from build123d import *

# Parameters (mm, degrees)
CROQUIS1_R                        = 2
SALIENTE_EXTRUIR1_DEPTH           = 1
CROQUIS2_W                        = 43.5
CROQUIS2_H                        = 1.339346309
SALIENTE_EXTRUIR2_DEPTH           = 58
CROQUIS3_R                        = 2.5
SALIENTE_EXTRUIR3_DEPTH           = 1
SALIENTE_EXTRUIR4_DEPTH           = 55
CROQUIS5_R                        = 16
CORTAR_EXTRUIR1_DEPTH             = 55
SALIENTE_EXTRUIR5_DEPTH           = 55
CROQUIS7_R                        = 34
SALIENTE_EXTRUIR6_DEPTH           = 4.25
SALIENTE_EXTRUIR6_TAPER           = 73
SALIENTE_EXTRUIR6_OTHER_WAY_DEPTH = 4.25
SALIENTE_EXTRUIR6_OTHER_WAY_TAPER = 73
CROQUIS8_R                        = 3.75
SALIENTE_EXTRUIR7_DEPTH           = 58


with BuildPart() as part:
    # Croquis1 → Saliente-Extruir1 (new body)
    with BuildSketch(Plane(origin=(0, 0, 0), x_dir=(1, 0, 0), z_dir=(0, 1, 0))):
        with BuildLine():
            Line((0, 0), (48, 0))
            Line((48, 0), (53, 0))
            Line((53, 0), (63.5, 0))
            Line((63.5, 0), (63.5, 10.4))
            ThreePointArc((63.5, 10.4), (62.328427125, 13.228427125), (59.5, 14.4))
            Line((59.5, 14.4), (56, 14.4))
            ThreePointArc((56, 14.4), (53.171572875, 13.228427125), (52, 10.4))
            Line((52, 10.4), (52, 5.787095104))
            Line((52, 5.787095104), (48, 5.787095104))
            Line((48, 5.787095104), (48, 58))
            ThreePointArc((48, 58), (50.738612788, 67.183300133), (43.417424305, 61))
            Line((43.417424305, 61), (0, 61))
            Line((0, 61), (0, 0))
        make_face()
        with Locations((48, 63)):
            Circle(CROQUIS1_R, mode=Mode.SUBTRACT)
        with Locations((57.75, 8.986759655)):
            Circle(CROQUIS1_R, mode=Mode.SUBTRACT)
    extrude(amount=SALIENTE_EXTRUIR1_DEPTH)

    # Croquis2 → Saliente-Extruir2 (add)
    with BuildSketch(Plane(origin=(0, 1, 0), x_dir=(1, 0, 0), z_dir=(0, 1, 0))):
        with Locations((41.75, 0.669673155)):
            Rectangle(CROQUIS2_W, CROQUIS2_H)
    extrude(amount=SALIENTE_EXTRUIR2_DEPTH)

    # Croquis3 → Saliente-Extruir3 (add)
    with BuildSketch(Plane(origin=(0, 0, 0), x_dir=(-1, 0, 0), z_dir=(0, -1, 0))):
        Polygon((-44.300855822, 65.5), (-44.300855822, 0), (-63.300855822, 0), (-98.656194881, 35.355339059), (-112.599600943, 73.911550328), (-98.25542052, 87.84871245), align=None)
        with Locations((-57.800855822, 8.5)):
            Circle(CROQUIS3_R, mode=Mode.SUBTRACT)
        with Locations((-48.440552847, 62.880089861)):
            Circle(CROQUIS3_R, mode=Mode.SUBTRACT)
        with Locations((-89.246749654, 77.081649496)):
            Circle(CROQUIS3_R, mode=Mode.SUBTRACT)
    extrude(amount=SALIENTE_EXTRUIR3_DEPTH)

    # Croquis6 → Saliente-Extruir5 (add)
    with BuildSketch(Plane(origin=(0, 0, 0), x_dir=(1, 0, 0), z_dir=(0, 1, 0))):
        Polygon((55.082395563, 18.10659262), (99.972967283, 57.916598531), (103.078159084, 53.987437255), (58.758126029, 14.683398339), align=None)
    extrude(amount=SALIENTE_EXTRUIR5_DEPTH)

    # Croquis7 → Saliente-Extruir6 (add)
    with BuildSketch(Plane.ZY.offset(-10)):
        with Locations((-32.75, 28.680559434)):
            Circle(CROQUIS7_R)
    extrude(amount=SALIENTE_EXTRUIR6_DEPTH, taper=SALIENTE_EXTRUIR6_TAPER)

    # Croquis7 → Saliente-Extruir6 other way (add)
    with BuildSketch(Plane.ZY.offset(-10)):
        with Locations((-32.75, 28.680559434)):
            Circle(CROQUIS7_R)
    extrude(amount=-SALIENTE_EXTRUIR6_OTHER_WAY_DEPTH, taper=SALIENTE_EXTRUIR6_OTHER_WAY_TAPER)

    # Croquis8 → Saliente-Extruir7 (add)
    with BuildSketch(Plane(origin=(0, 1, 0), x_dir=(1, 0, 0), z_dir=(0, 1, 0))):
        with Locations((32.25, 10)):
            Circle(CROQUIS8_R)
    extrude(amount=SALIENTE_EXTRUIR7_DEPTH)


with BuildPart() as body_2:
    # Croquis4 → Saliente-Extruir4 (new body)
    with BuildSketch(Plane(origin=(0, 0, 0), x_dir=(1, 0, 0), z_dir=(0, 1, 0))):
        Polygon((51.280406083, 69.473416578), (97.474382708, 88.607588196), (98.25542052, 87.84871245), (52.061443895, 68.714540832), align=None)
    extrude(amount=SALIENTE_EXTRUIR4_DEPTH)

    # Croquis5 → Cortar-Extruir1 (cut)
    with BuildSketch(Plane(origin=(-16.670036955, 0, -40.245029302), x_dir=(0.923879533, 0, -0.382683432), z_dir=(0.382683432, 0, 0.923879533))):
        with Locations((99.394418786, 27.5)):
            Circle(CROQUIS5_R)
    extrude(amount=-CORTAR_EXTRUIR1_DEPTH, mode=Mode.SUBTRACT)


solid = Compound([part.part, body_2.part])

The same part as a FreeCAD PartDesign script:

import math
import FreeCAD as App
import Part
import Sketcher
from FreeCAD import Vector
Q = App.Units.Quantity

doc = App.newDocument("Part")
body = doc.addObject("PartDesign::Body", "Body")

# Sketch on XZ plane
sketch1 = body.newObject("Sketcher::SketchObject", "Sketch")
sketch1.AttachmentSupport = (doc.getObject("XZ_Plane"), [""])
sketch1.MapMode = "FlatFace"
sketch1.addGeometry(Part.LineSegment(Vector(0, 0, 0), Vector(63.5, 0, 0)), False)
sketch1.addGeometry(Part.LineSegment(Vector(63.5, 0, 0), Vector(63.5, -10.4, 0)), False)
sketch1.addGeometry(Part.ArcOfCircle(Part.Circle(Vector(59.5, -10.4, 0), Vector(0, 0, 1), 4), math.radians(-90), math.radians(0)), False)
sketch1.addGeometry(Part.LineSegment(Vector(59.5, -14.4, 0), Vector(56, -14.4, 0)), False)
sketch1.addGeometry(Part.ArcOfCircle(Part.Circle(Vector(56, -10.4, 0), Vector(0, 0, 1), 4), math.radians(180), math.radians(270)), False)
sketch1.addGeometry(Part.LineSegment(Vector(52, -10.4, 0), Vector(52, -5.787095, 0)), False)
sketch1.addGeometry(Part.LineSegment(Vector(52, -5.787095, 0), Vector(48, -5.787095, 0)), False)
sketch1.addGeometry(Part.LineSegment(Vector(48, -5.787095, 0), Vector(48, -58, 0)), False)
sketch1.addGeometry(Part.ArcOfCircle(Part.Circle(Vector(48, -63, 0), Vector(0, 0, 1), 5), math.radians(156.421822), math.radians(450)), False)
sketch1.addGeometry(Part.LineSegment(Vector(43.417424, -61, 0), Vector(0, -61, 0)), False)
sketch1.addGeometry(Part.LineSegment(Vector(0, -61, 0), Vector(0, 0, 0)), False)
sketch1.addGeometry(Part.Circle(Vector(57.75, -8.98676, 0), Vector(0, 0, 1), 2), False)
sketch1.addGeometry(Part.Circle(Vector(48, -63, 0), Vector(0, 0, 1), 2), False)
sketch1.addConstraint(Sketcher.Constraint("Coincident", 0, 2, 1, 1))
sketch1.addConstraint(Sketcher.Constraint("Tangent", 1, 2, 2, 2))
sketch1.addConstraint(Sketcher.Constraint("Tangent", 2, 1, 3, 1))
sketch1.addConstraint(Sketcher.Constraint("Tangent", 3, 2, 4, 2))
sketch1.addConstraint(Sketcher.Constraint("Tangent", 4, 1, 5, 1))
sketch1.addConstraint(Sketcher.Constraint("Coincident", 5, 2, 6, 1))
sketch1.addConstraint(Sketcher.Constraint("Coincident", 6, 2, 7, 1))
sketch1.addConstraint(Sketcher.Constraint("Coincident", 7, 2, 8, 2))
sketch1.addConstraint(Sketcher.Constraint("Coincident", 8, 1, 9, 1))
sketch1.addConstraint(Sketcher.Constraint("Coincident", 9, 2, 10, 1))
sketch1.addConstraint(Sketcher.Constraint("Coincident", 10, 2, 0, 1))
sketch1.addConstraint(Sketcher.Constraint("Horizontal", 0))
sketch1.addConstraint(Sketcher.Constraint("Vertical", 1))
sketch1.addConstraint(Sketcher.Constraint("Horizontal", 3))
sketch1.addConstraint(Sketcher.Constraint("Vertical", 5))
sketch1.addConstraint(Sketcher.Constraint("Horizontal", 6))
sketch1.addConstraint(Sketcher.Constraint("Vertical", 7))
sketch1.addConstraint(Sketcher.Constraint("Horizontal", 9))
sketch1.addConstraint(Sketcher.Constraint("Vertical", 10))
sketch1.addConstraint(Sketcher.Constraint("Coincident", 10, 2, -1, 1))
sketch1.addConstraint(Sketcher.Constraint("Coincident", 12, 3, 8, 3))
sketch1.addConstraint(Sketcher.Constraint("Equal", 2, 4))
sketch1.addConstraint(Sketcher.Constraint("Equal", 11, 12))
sketch1.addConstraint(Sketcher.Constraint("Vertical", 12, 3, 6, 2))
sketch1.addConstraint(Sketcher.Constraint("Diameter", 11, 4.0))
sketch1.addConstraint(Sketcher.Constraint("Radius", 2, 4.0))
sketch1.addConstraint(Sketcher.Constraint("Radius", 8, 5.0))
sketch1.addConstraint(Sketcher.Constraint("DistanceX", 6, 2, 6, 1, 4.0))
sketch1.addConstraint(Sketcher.Constraint("DistanceY", 10, 1, 10, 2, 61.0))
sketch1.addConstraint(Sketcher.Constraint("DistanceX", 0, 1, 0, 2, 63.5))
sketch1.addConstraint(Sketcher.Constraint("DistanceX", 3, 2, 3, 1, 3.5))
sketch1.addConstraint(Sketcher.Constraint("DistanceY", 1, 2, 1, 1, 10.4))
sketch1.addConstraint(Sketcher.Constraint("DistanceY", 8, 3, -1, 1, 63.0))
sketch1.addConstraint(Sketcher.Constraint("DistanceX", -1, 1, 11, 3, 57.75))
sketch1.addConstraint(Sketcher.Constraint("DistanceY", 5, 1, 5, 2, 4.612905))
sketch1.addConstraint(Sketcher.Constraint("DistanceY", 11, 3, -1, 1, 8.98676))
pad1 = body.newObject("PartDesign::Pad", "Pad")
pad1.Profile = sketch1
pad1.Length = 1
pad1.Reversed = True

# Sketch on XZ plane
sketch2 = body.newObject("Sketcher::SketchObject", "Sketch001")
sketch2.AttachmentSupport = (doc.getObject("XZ_Plane"), [""])
sketch2.MapMode = "FlatFace"
sketch2.AttachmentOffset = App.Placement(Vector(0, 0, -1), App.Rotation())
sketch2.addGeometry(Part.LineSegment(Vector(20, -1.339346, 0), Vector(20, 0, 0)), False)
sketch2.addGeometry(Part.LineSegment(Vector(20, 0, 0), Vector(63.5, 0, 0)), False)
sketch2.addGeometry(Part.LineSegment(Vector(63.5, 0, 0), Vector(63.5, -1.339346, 0)), False)
sketch2.addGeometry(Part.LineSegment(Vector(63.5, -1.339346, 0), Vector(20, -1.339346, 0)), False)
sketch2.addConstraint(Sketcher.Constraint("Coincident", 0, 2, 1, 1))
sketch2.addConstraint(Sketcher.Constraint("Coincident", 1, 2, 2, 1))
sketch2.addConstraint(Sketcher.Constraint("Coincident", 2, 2, 3, 1))
sketch2.addConstraint(Sketcher.Constraint("Coincident", 3, 2, 0, 1))
sketch2.addConstraint(Sketcher.Constraint("Vertical", 0))
sketch2.addConstraint(Sketcher.Constraint("Horizontal", 1))
sketch2.addConstraint(Sketcher.Constraint("Vertical", 2))
sketch2.addConstraint(Sketcher.Constraint("Horizontal", 3))
sketch2.addConstraint(Sketcher.Constraint("PointOnObject", 0, 2, -1))
sketch2.addConstraint(Sketcher.Constraint("DistanceX", 1, 1, 1, 2, 43.5))
sketch2.addConstraint(Sketcher.Constraint("DistanceX", -1, 1, 0, 2, 20.0))
sketch2.addConstraint(Sketcher.Constraint("DistanceY", 0, 1, 0, 2, 1.339346))
pad2 = body.newObject("PartDesign::Pad", "Pad001")
pad2.Profile = sketch2
pad2.Length = 58
pad2.Reversed = True

# Sketch on XZ plane
sketch3 = body.newObject("Sketcher::SketchObject", "Sketch002")
sketch3.AttachmentSupport = (doc.getObject("XZ_Plane"), [""])
sketch3.MapMode = "FlatFace"
sketch3.addGeometry(Part.LineSegment(Vector(44.300856, 0, 0), Vector(44.300856, -65.5, 0)), False)
sketch3.addGeometry(Part.LineSegment(Vector(44.300856, -65.5, 0), Vector(98.255421, -87.848712, 0)), False)
sketch3.addGeometry(Part.LineSegment(Vector(98.255421, -87.848712, 0), Vector(112.599601, -73.91155, 0)), False)
sketch3.addGeometry(Part.LineSegment(Vector(112.599601, -73.91155, 0), Vector(98.656195, -35.355339, 0)), False)
sketch3.addGeometry(Part.LineSegment(Vector(98.656195, -35.355339, 0), Vector(63.300856, 0, 0)), False)
sketch3.addGeometry(Part.LineSegment(Vector(63.300856, 0, 0), Vector(44.300856, 0, 0)), False)
sketch3.addGeometry(Part.Circle(Vector(57.800856, -8.5, 0), Vector(0, 0, 1), 2.5), False)
sketch3.addGeometry(Part.Circle(Vector(48.440553, -62.88009, 0), Vector(0, 0, 1), 2.5), False)
sketch3.addGeometry(Part.Circle(Vector(89.24675, -77.081649, 0), Vector(0, 0, 1), 2.5), False)
sketch3.addConstraint(Sketcher.Constraint("Coincident", 0, 2, 1, 1))
sketch3.addConstraint(Sketcher.Constraint("Coincident", 1, 2, 2, 1))
sketch3.addConstraint(Sketcher.Constraint("Coincident", 2, 2, 3, 1))
sketch3.addConstraint(Sketcher.Constraint("Coincident", 3, 2, 4, 1))
sketch3.addConstraint(Sketcher.Constraint("Coincident", 4, 2, 5, 1))
sketch3.addConstraint(Sketcher.Constraint("Coincident", 5, 2, 0, 1))
sketch3.addConstraint(Sketcher.Constraint("Vertical", 0))
sketch3.addConstraint(Sketcher.Constraint("Horizontal", 5))
sketch3.addConstraint(Sketcher.Constraint("Equal", 6, 7))
sketch3.addConstraint(Sketcher.Constraint("Equal", 7, 8))
sketch3.addConstraint(Sketcher.Constraint("PointOnObject", 4, 2, -1))
sketch3.addConstraint(Sketcher.Constraint("Diameter", 6, 5.0))
sketch3.addConstraint(Sketcher.Constraint("DistanceX", 5, 2, 5, 1, 19.0))
sketch3.addConstraint(Sketcher.Constraint("Angle", 4, Q("135 deg")))
sketch3.addConstraint(Sketcher.Constraint("Distance", 2, 20.0))
sketch3.addConstraint(Sketcher.Constraint("Distance", 3, 41.0))
sketch3.addConstraint(Sketcher.Constraint("Distance", 4, 50.0))
sketch3.addConstraint(Sketcher.Constraint("DistanceY", 0, 2, 0, 1, 65.5))
sketch3.addConstraint(Sketcher.Constraint("Angle", 1, Q("-22.5 deg")))
sketch3.addConstraint(Sketcher.Constraint("DistanceY", 0, 2, 6, 3, 57.0))
sketch3.addConstraint(Sketcher.Constraint("Distance", 1, 58.4))
sketch3.addConstraint(Sketcher.Constraint("DistanceX", 0, 2, 6, 3, 13.5))
sketch3.addConstraint(Sketcher.Constraint("DistanceX", -1, 1, 2, 2, 112.599601))
sketch3.addConstraint(Sketcher.Constraint("DistanceY", 8, 3, 2, 2, 3.170099))
sketch3.addConstraint(Sketcher.Constraint("DistanceY", 7, 3, -1, 1, 62.88009))
sketch3.addConstraint(Sketcher.Constraint("DistanceX", -1, 1, 8, 3, 89.24675))
sketch3.addConstraint(Sketcher.Constraint("DistanceX", 7, 3, 2, 2, 64.159048))
pad3 = body.newObject("PartDesign::Pad", "Pad002")
pad3.Profile = sketch3
pad3.Length = 1

# Sketch on XZ plane
sketch4 = body.newObject("Sketcher::SketchObject", "Sketch003")
sketch4.AttachmentSupport = (doc.getObject("XZ_Plane"), [""])
sketch4.MapMode = "FlatFace"
sketch4.addGeometry(Part.LineSegment(Vector(99.972967, -57.916599, 0), Vector(55.082396, -18.106593, 0)), False)
sketch4.addGeometry(Part.LineSegment(Vector(55.082396, -18.106593, 0), Vector(58.758126, -14.683398, 0)), False)
sketch4.addGeometry(Part.LineSegment(Vector(58.758126, -14.683398, 0), Vector(103.078159, -53.987437, 0)), False)
sketch4.addGeometry(Part.LineSegment(Vector(103.078159, -53.987437, 0), Vector(99.972967, -57.916599, 0)), False)
sketch4.addConstraint(Sketcher.Constraint("Coincident", 0, 2, 1, 1))
sketch4.addConstraint(Sketcher.Constraint("Coincident", 1, 2, 2, 1))
sketch4.addConstraint(Sketcher.Constraint("Coincident", 2, 2, 3, 1))
sketch4.addConstraint(Sketcher.Constraint("Coincident", 3, 2, 0, 1))
sketch4.addConstraint(Sketcher.Constraint("Parallel", 0, 2))
sketch4.addConstraint(Sketcher.Constraint("Distance", 0, 60.0))
sketch4.addConstraint(Sketcher.Constraint("DistanceY", 1, 2, -1, 1, 14.683398))
sketch4.addConstraint(Sketcher.Constraint("DistanceY", 3, 2, -1, 1, 57.916599))
sketch4.addConstraint(Sketcher.Constraint("DistanceX", -1, 1, 2, 2, 103.078159))
sketch4.addConstraint(Sketcher.Constraint("DistanceX", 0, 2, 1, 2, 3.67573))
sketch4.addConstraint(Sketcher.Constraint("DistanceY", 2, 2, 1, 2, 39.304039))
sketch4.addConstraint(Sketcher.Constraint("DistanceX", 3, 2, 2, 2, 3.105192))
pad4 = body.newObject("PartDesign::Pad", "Pad003")
pad4.Profile = sketch4
pad4.Length = 55
pad4.Reversed = True

# Sketch on YZ plane
sketch5 = body.newObject("Sketcher::SketchObject", "Sketch004")
sketch5.AttachmentSupport = (doc.getObject("YZ_Plane"), [""])
sketch5.MapMode = "FlatFace"
sketch5.AttachmentOffset = App.Placement(Vector(0, 0, 10), App.Rotation())
sketch5.addGeometry(Part.Circle(Vector(28.680559, -32.75, 0), Vector(0, 0, 1), 34), False)
sketch5.addConstraint(Sketcher.Constraint("Diameter", 0, 68.0))
sketch5.addConstraint(Sketcher.Constraint("DistanceY", 0, 3, -1, 1, 32.75))
sketch5.addConstraint(Sketcher.Constraint("DistanceX", -1, 1, 0, 3, 28.680559))
pad5 = body.newObject("PartDesign::Pad", "Pad004")
pad5.Profile = sketch5
pad5.Length = 4.25
pad5.Reversed = True
pad5.TaperAngle = -73

# Sketch on YZ plane
sketch6 = body.newObject("Sketcher::SketchObject", "Sketch005")
sketch6.AttachmentSupport = (doc.getObject("YZ_Plane"), [""])
sketch6.MapMode = "FlatFace"
sketch6.AttachmentOffset = App.Placement(Vector(0, 0, 10), App.Rotation())
sketch6.addGeometry(Part.Circle(Vector(28.680559, -32.75, 0), Vector(0, 0, 1), 34), False)
sketch6.addConstraint(Sketcher.Constraint("Diameter", 0, 68.0))
sketch6.addConstraint(Sketcher.Constraint("DistanceY", 0, 3, -1, 1, 32.75))
sketch6.addConstraint(Sketcher.Constraint("DistanceX", -1, 1, 0, 3, 28.680559))
pad6 = body.newObject("PartDesign::Pad", "Pad005")
pad6.Profile = sketch6
pad6.Length = 4.25
pad6.TaperAngle = -73

# Sketch on XZ plane
sketch7 = body.newObject("Sketcher::SketchObject", "Sketch006")
sketch7.AttachmentSupport = (doc.getObject("XZ_Plane"), [""])
sketch7.MapMode = "FlatFace"
sketch7.AttachmentOffset = App.Placement(Vector(0, 0, -1), App.Rotation())
sketch7.addGeometry(Part.Circle(Vector(32.25, -10, 0), Vector(0, 0, 1), 3.75), False)
sketch7.addConstraint(Sketcher.Constraint("Diameter", 0, 7.5))
sketch7.addConstraint(Sketcher.Constraint("DistanceY", 0, 3, -1, 1, 10.0))
sketch7.addConstraint(Sketcher.Constraint("DistanceX", -1, 1, 0, 3, 32.25))
pad7 = body.newObject("PartDesign::Pad", "Pad006")
pad7.Profile = sketch7
pad7.Length = 58
pad7.Reversed = True
body2 = doc.addObject("PartDesign::Body", "Body001")

# Sketch on XZ plane
sketch8 = body2.newObject("Sketcher::SketchObject", "Sketch007")
sketch8.AttachmentSupport = (doc.getObject("XZ_Plane001"), [""])
sketch8.MapMode = "FlatFace"
sketch8.addGeometry(Part.LineSegment(Vector(97.474383, -88.607588, 0), Vector(51.280406, -69.473417, 0)), False)
sketch8.addGeometry(Part.LineSegment(Vector(51.280406, -69.473417, 0), Vector(52.061444, -68.714541, 0)), False)
sketch8.addGeometry(Part.LineSegment(Vector(52.061444, -68.714541, 0), Vector(98.255421, -87.848712, 0)), False)
sketch8.addGeometry(Part.LineSegment(Vector(98.255421, -87.848712, 0), Vector(97.474383, -88.607588, 0)), False)
sketch8.addConstraint(Sketcher.Constraint("Coincident", 0, 2, 1, 1))
sketch8.addConstraint(Sketcher.Constraint("Coincident", 1, 2, 2, 1))
sketch8.addConstraint(Sketcher.Constraint("Coincident", 2, 2, 3, 1))
sketch8.addConstraint(Sketcher.Constraint("Coincident", 3, 2, 0, 1))
sketch8.addConstraint(Sketcher.Constraint("Parallel", 0, 2))
sketch8.addConstraint(Sketcher.Constraint("Parallel", 1, 3))
sketch8.addConstraint(Sketcher.Constraint("Distance", 0, 50.0))
sketch8.addConstraint(Sketcher.Constraint("Angle", 0, Q("157.5 deg")))
sketch8.addConstraint(Sketcher.Constraint("DistanceY", 1, 2, -1, 1, 68.714541))
sketch8.addConstraint(Sketcher.Constraint("DistanceX", -1, 1, 2, 2, 98.255421))
sketch8.addConstraint(Sketcher.Constraint("DistanceY", 3, 2, -1, 1, 88.607588))
sketch8.addConstraint(Sketcher.Constraint("DistanceX", 1, 2, 3, 2, 45.412939))
pad8 = body2.newObject("PartDesign::Pad", "Pad007")
pad8.Profile = sketch8
pad8.Length = 55
pad8.Reversed = True

# Sketch on an angled plane
sketch9 = body2.newObject("Sketcher::SketchObject", "Sketch008")
sketch9.Placement = App.Placement(Vector(-16.670037, 0, -40.245029), App.Rotation(Vector(0.923879533, 0, -0.382683432), Vector(0, 1.000000001, 0), Vector(0.382683432, 0, 0.923879533), "ZXY"))
sketch9.addGeometry(Part.Circle(Vector(99.394419, 27.5, 0), Vector(0, 0, 1), 16), False)
sketch9.addConstraint(Sketcher.Constraint("Diameter", 0, 32.0))
sketch9.addConstraint(Sketcher.Constraint("DistanceY", -1, 1, 0, 3, 27.5))
sketch9.addConstraint(Sketcher.Constraint("DistanceX", -1, 1, 0, 3, 99.394419))
pocket1 = body2.newObject("PartDesign::Pocket", "Pocket")
pocket1.Profile = sketch9
pocket1.Length = 55

doc.recompute()
